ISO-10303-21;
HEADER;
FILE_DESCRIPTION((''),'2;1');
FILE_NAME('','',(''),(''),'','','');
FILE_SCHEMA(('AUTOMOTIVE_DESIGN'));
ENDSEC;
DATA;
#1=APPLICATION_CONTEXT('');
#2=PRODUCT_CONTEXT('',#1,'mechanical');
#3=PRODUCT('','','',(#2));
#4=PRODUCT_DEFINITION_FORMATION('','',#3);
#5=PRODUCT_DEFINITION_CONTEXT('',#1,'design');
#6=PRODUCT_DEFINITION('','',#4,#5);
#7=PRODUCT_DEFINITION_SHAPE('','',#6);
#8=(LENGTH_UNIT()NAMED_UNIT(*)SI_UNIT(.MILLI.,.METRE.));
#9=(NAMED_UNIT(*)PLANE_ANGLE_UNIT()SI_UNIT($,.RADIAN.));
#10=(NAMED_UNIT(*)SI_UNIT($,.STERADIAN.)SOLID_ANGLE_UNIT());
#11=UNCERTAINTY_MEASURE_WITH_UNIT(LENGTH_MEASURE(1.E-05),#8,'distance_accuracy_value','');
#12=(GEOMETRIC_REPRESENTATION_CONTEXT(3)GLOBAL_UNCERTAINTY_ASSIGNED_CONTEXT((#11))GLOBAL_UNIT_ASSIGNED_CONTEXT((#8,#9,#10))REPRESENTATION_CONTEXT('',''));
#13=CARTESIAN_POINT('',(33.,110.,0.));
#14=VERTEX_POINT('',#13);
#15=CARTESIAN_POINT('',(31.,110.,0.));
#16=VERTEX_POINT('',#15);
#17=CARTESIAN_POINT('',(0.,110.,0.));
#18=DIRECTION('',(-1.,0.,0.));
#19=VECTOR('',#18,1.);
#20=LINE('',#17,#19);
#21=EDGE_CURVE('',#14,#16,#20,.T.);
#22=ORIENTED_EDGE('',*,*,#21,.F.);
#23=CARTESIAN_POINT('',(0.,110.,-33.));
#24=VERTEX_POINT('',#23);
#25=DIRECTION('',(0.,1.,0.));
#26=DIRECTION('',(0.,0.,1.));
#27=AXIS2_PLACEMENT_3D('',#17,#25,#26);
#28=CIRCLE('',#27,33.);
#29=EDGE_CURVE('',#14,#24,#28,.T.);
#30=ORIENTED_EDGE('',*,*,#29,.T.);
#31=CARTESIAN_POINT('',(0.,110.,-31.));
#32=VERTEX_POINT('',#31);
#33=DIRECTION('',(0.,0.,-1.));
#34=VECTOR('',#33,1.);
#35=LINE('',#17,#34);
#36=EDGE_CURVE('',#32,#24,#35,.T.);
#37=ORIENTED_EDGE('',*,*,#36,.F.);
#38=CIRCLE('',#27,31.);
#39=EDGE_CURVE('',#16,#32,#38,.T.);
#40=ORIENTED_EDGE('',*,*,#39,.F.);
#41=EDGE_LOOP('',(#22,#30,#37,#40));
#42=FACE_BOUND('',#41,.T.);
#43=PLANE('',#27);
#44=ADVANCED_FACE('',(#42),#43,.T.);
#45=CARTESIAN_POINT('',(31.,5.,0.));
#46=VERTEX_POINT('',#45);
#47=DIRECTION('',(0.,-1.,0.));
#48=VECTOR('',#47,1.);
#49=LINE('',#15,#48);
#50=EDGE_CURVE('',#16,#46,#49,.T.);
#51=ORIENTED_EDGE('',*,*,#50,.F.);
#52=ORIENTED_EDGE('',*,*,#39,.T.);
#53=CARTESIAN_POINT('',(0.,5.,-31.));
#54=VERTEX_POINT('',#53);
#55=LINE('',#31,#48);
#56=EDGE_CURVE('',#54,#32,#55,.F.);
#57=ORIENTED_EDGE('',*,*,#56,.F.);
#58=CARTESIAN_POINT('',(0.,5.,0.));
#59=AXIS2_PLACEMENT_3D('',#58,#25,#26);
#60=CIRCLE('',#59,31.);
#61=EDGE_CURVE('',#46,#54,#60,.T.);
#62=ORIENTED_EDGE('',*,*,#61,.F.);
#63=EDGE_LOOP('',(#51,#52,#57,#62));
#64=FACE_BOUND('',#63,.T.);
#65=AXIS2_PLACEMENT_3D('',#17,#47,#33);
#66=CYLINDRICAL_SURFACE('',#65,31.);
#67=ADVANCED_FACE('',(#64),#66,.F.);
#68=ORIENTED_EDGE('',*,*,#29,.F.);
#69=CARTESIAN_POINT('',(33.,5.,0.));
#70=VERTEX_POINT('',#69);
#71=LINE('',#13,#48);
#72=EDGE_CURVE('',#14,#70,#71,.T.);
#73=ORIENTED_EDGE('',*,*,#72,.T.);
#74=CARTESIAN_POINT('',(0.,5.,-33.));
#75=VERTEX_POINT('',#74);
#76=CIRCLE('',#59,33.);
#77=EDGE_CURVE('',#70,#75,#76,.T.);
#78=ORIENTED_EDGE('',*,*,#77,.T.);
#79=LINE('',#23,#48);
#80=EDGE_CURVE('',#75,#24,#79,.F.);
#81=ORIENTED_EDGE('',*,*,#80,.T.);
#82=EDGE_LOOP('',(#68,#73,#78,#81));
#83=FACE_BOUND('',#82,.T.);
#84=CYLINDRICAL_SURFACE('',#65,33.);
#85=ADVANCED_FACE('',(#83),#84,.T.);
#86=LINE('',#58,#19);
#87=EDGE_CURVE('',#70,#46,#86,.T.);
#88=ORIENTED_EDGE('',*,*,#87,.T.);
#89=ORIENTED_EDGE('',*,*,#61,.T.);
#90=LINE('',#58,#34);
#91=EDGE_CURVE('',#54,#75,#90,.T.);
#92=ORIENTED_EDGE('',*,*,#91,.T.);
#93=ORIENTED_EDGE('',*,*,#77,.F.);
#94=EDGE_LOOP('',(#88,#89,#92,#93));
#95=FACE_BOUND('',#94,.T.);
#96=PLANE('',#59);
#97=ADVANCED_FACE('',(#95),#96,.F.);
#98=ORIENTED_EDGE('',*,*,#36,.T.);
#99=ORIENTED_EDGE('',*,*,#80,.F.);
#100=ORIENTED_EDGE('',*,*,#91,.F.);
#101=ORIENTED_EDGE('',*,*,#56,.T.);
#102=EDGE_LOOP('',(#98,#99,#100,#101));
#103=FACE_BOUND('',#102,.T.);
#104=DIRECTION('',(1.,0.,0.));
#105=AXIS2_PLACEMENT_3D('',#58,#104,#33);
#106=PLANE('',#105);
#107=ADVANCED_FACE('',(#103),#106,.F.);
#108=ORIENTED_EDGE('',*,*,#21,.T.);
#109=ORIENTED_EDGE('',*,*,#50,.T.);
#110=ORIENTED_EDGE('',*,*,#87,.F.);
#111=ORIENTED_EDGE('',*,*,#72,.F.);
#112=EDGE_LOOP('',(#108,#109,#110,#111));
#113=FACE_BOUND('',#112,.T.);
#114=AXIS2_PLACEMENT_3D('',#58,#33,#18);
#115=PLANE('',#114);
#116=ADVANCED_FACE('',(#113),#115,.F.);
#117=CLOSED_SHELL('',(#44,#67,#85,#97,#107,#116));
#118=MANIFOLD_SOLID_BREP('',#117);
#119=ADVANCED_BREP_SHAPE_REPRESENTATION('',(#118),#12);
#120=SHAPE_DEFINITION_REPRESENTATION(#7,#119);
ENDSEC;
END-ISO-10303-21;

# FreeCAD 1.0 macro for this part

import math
import FreeCAD as App
import Part
import Sketcher

V = App.Vector

doc = App.newDocument("Part")
body = doc.addObject("PartDesign::Body", "Body")

# Sketch on XZ plane
sketch1 = body.newObject("Sketcher::SketchObject", "Sketch")
sketch1.AttachmentSupport = (doc.getObject("XZ_Plane"), [""])
sketch1.MapMode = "FlatFace"
sketch1.AttachmentOffset = App.Placement(V(0, 0, -5), App.Rotation())
sketch1.addGeometry(Part.Circle(V(0, 0, 0), V(0, 0, 1), 33), False)
sketch1.addGeometry(Part.Circle(V(0, 0, 0), V(0, 0, 1), 31), False)
sketch1.addConstraint(Sketcher.Constraint("Coincident", 0, 3, -1, 1))
sketch1.addConstraint(Sketcher.Constraint("Coincident", 1, 3, -1, 1))
sketch1.addConstraint(Sketcher.Constraint("Diameter", 0, 66.0))
sketch1.addConstraint(Sketcher.Constraint("Diameter", 1, 62.0))
pad1 = body.newObject("PartDesign::Pad", "Pad")
pad1.Profile = sketch1
pad1.Length = 105
pad1.Reversed = True

# Sketch on XZ plane
sketch2 = body.newObject("Sketcher::SketchObject", "Sketch001")
sketch2.AttachmentSupport = (doc.getObject("XZ_Plane"), [""])
sketch2.MapMode = "FlatFace"
sketch2.AttachmentOffset = App.Placement(V(0, 0, -115), App.Rotation())
sketch2.addGeometry(Part.ArcOfCircle(Part.Circle(V(0, 0, 0), V(0, 0, 1), 35), math.radians(0), math.radians(270)), False)
sketch2.addGeometry(Part.LineSegment(V(35, 0, 0), V(0, 0, 0)), False)
sketch2.addGeometry(Part.LineSegment(V(0, 0, 0), V(0, -35, 0)), False)
sketch2.addConstraint(Sketcher.Constraint("Coincident", 0, 1, 1, 1))
sketch2.addConstraint(Sketcher.Constraint("Coincident", 1, 2, 2, 1))
sketch2.addConstraint(Sketcher.Constraint("Coincident", 2, 2, 0, 2))
sketch2.addConstraint(Sketcher.Constraint("Horizontal", 1))
sketch2.addConstraint(Sketcher.Constraint("Vertical", 2))
sketch2.addConstraint(Sketcher.Constraint("Coincident", 0, 3, -1, 1))
sketch2.addConstraint(Sketcher.Constraint("Coincident", 1, 2, -1, 1))
sketch2.addConstraint(Sketcher.Constraint("Radius", 0, 35.0))
pocket1 = body.newObject("PartDesign::Pocket", "Pocket")
pocket1.Profile = sketch2
pocket1.Length = 110
pocket1.Reversed = True

doc.recompute()
